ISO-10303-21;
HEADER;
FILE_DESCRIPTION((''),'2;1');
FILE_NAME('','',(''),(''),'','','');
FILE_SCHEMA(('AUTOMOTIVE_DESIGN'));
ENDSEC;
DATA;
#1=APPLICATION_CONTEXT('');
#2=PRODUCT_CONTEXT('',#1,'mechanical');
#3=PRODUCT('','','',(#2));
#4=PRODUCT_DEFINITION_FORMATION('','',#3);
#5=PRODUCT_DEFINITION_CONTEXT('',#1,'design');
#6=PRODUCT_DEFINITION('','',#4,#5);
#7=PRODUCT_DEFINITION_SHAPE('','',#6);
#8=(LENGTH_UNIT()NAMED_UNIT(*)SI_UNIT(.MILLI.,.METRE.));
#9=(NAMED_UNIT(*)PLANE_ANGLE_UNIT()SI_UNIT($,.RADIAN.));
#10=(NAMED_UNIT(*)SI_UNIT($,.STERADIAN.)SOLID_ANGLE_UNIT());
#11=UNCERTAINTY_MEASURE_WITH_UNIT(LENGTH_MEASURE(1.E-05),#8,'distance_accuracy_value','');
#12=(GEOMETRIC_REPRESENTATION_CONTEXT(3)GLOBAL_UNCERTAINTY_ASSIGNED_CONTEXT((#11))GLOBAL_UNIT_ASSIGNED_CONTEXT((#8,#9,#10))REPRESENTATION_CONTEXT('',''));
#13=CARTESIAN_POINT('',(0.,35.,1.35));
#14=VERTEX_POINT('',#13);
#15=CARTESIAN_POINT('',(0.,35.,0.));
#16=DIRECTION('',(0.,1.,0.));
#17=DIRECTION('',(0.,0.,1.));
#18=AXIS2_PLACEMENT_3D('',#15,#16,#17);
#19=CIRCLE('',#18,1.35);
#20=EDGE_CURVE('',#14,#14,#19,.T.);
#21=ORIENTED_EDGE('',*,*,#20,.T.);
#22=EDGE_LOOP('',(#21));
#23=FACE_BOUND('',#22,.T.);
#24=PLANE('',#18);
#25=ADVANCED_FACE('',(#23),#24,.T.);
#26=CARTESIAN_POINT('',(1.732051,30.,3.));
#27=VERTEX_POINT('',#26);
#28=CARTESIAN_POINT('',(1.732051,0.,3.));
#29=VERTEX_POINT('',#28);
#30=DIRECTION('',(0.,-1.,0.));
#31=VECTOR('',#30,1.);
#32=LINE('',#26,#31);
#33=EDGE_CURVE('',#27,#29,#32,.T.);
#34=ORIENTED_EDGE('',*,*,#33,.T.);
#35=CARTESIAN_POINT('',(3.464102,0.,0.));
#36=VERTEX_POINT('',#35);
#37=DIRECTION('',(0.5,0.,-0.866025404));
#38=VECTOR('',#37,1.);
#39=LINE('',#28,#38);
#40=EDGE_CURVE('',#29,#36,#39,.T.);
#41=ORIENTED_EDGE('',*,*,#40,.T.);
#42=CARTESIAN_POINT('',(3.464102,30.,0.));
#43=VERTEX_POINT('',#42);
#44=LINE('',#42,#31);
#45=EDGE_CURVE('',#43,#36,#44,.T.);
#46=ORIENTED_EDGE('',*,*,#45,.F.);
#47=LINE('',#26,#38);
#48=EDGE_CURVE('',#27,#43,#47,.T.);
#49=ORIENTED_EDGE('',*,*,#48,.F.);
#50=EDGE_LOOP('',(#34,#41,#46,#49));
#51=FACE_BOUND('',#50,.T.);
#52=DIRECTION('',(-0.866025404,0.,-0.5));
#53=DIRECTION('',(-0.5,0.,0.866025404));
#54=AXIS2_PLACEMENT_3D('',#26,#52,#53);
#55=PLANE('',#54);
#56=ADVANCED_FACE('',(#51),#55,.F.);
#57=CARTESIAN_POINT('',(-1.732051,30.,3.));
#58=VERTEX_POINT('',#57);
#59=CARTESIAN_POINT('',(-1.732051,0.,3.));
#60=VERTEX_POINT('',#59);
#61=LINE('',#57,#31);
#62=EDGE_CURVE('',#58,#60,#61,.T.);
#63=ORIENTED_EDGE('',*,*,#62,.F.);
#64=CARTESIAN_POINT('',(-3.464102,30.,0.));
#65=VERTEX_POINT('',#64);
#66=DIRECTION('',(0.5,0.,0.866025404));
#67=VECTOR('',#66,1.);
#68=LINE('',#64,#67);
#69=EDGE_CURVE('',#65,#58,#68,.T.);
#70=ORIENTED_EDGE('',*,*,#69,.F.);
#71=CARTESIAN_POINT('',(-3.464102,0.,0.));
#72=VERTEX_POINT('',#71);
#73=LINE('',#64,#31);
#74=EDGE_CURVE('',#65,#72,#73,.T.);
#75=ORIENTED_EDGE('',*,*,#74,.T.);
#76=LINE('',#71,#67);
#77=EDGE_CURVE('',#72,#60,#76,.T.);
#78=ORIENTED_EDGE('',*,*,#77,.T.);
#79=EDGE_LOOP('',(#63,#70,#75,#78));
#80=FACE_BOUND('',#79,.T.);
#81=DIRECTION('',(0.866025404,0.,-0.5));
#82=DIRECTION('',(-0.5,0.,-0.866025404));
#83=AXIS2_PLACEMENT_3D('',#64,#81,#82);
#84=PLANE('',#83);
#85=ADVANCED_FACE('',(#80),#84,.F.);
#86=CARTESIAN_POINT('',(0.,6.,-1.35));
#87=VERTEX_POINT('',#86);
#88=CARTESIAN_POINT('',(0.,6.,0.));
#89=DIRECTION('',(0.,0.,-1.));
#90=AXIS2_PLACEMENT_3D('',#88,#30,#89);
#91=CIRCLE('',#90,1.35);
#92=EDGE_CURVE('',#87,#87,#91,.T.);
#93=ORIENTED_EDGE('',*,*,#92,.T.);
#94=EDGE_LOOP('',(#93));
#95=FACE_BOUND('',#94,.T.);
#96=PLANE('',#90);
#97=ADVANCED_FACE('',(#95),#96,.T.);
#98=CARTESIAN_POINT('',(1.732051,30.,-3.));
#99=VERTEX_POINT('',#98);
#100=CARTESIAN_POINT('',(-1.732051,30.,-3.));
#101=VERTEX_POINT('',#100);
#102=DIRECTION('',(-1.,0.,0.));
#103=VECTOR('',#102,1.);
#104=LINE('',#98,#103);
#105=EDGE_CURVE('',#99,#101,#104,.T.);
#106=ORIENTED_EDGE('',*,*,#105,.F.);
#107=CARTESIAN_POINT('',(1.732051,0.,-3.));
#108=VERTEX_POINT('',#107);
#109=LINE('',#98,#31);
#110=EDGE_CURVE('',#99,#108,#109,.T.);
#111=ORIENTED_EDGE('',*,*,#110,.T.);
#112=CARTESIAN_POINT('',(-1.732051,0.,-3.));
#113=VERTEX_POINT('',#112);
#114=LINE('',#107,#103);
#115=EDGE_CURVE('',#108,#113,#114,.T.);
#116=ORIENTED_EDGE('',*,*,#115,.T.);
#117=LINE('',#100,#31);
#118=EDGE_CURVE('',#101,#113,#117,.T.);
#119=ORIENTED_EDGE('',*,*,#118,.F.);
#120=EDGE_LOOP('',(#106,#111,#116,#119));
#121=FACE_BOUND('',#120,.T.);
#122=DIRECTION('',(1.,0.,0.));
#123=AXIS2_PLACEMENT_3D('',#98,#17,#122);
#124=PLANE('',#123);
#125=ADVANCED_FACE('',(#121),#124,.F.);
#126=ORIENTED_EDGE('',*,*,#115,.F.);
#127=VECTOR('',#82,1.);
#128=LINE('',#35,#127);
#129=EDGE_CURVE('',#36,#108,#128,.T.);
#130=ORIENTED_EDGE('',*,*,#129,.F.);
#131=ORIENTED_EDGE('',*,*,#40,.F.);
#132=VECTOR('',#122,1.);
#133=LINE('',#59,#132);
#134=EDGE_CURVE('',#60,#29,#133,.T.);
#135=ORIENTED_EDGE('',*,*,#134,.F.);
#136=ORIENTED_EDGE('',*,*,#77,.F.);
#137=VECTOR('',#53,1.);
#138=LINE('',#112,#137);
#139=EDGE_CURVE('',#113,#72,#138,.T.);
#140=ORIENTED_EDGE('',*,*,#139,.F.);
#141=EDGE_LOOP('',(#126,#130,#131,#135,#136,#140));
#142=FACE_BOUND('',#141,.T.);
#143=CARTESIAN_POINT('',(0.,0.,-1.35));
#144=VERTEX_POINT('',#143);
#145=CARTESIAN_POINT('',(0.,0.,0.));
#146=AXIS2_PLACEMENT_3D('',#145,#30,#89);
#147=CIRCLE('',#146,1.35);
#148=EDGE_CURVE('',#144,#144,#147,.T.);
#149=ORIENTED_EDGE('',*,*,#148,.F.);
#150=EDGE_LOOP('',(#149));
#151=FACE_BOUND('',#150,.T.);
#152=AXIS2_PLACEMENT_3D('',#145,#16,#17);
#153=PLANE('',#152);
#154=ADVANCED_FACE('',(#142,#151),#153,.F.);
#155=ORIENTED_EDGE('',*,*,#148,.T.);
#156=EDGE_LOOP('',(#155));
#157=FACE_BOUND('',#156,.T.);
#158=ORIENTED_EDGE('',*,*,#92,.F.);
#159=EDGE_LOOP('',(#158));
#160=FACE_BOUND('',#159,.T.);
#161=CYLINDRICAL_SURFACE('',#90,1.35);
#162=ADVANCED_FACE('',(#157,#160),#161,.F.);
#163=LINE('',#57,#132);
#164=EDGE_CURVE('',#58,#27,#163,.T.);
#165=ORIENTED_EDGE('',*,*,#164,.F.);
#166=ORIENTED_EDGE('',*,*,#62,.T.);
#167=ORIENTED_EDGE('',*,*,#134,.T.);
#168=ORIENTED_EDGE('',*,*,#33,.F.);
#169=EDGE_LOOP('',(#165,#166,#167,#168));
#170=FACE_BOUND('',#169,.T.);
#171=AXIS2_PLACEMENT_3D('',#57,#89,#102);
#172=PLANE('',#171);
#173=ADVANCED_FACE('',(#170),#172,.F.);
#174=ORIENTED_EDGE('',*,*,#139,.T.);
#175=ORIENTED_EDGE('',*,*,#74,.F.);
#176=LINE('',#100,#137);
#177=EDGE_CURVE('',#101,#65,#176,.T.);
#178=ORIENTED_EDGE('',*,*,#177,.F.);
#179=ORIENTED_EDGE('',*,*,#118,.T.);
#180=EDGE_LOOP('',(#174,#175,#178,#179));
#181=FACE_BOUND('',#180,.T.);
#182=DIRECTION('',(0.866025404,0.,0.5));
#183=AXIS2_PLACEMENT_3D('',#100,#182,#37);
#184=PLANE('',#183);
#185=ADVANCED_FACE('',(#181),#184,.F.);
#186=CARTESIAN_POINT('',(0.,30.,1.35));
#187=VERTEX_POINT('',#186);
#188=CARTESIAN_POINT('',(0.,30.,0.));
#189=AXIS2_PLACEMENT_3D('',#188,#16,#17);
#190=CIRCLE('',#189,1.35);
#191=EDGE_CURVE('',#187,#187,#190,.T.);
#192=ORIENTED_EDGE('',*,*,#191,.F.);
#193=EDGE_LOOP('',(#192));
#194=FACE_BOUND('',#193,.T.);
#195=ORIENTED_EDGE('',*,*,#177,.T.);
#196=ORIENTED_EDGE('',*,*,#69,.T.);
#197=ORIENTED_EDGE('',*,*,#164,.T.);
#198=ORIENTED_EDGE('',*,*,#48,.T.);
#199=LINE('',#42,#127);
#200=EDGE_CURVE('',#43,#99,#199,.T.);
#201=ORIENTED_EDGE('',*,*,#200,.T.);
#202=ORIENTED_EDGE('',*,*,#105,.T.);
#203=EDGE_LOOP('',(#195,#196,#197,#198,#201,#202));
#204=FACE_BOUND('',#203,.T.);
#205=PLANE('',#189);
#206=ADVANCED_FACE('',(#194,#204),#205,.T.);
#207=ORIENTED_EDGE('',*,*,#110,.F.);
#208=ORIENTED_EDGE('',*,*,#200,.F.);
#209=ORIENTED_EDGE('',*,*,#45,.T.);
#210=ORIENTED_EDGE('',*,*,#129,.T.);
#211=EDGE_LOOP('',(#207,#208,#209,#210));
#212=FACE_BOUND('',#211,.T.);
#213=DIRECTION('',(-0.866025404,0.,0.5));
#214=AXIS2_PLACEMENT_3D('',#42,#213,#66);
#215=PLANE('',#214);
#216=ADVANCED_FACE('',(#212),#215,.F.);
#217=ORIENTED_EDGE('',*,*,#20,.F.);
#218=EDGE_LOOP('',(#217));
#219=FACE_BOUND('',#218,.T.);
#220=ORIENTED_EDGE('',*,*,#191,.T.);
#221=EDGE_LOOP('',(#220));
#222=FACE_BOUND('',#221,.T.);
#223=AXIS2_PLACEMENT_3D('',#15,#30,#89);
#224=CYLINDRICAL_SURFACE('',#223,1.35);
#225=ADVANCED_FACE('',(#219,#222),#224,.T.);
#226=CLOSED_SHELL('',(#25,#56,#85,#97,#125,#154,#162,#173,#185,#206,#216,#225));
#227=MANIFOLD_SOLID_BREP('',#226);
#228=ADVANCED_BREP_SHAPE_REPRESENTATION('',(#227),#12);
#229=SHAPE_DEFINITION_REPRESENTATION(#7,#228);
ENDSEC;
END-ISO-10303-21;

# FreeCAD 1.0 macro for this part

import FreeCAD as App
import Part
import Sketcher
Q = App.Units.Quantity

doc = App.newDocument("Part")
body = doc.addObject("PartDesign::Body", "Body")

sketch1 = body.newObject("Sketcher::SketchObject", "Sketch")
sketch1.AttachmentSupport = (doc.getObject("XZ_Plane"), [""])
sketch1.MapMode = "FlatFace"
sketch1.addGeometry(Part.LineSegment(App.Vector(3.464102, 0, 0), App.Vector(1.732051, -3, 0)), False)
sketch1.addGeometry(Part.LineSegment(App.Vector(1.732051, -3, 0), App.Vector(-1.732051, -3, 0)), False)
sketch1.addGeometry(Part.LineSegment(App.Vector(-1.732051, -3, 0), App.Vector(-3.464102, 0, 0)), False)
sketch1.addGeometry(Part.LineSegment(App.Vector(-3.464102, 0, 0), App.Vector(-1.732051, 3, 0)), False)
sketch1.addGeometry(Part.LineSegment(App.Vector(-1.732051, 3, 0), App.Vector(1.732051, 3, 0)), False)
sketch1.addGeometry(Part.LineSegment(App.Vector(1.732051, 3, 0), App.Vector(3.464102, 0, 0)), False)
sketch1.addConstraint(Sketcher.Constraint("Coincident", 0, 2, 1, 1))
sketch1.addConstraint(Sketcher.Constraint("Coincident", 1, 2, 2, 1))
sketch1.addConstraint(Sketcher.Constraint("Coincident", 2, 2, 3, 1))
sketch1.addConstraint(Sketcher.Constraint("Coincident", 3, 2, 4, 1))
sketch1.addConstraint(Sketcher.Constraint("Coincident", 4, 2, 5, 1))
sketch1.addConstraint(Sketcher.Constraint("Coincident", 5, 2, 0, 1))
sketch1.addConstraint(Sketcher.Constraint("Horizontal", 1))
sketch1.addConstraint(Sketcher.Constraint("Horizontal", 4))
sketch1.addConstraint(Sketcher.Constraint("Symmetric", 0, 2, 3, 2, -1, 1))
sketch1.addConstraint(Sketcher.Constraint("Symmetric", 2, 2, 5, 2, -1, 1))
sketch1.addConstraint(Sketcher.Constraint("PointOnObject", 2, 2, -1))
sketch1.addConstraint(Sketcher.Constraint("Parallel", 2, 5))
sketch1.addConstraint(Sketcher.Constraint("Vertical", 1, 2, 3, 2))
sketch1.addConstraint(Sketcher.Constraint("Angle", 0, Q("-120 deg")))
sketch1.addConstraint(Sketcher.Constraint("DistanceY", 0, 2, -1, 1, Q("3 mm")))
sketch1.addConstraint(Sketcher.Constraint("DistanceX", 1, 2, 1, 1, Q("3.464102 mm")))
pad1 = body.newObject("PartDesign::Pad", "Pad")
pad1.Profile = sketch1
pad1.Length = 30
pad1.Reversed = True

sketch2 = body.newObject("Sketcher::SketchObject", "Sketch001")
sketch2.AttachmentSupport = (doc.getObject("XZ_Plane"), [""])
sketch2.MapMode = "FlatFace"
sketch2.AttachmentOffset = App.Placement(App.Vector(0, 0, -30), App.Rotation())
sketch2.addGeometry(Part.Circle(App.Vector(0, 0, 0), App.Vector(0, 0, 1), 1.35), False)
sketch2.addConstraint(Sketcher.Constraint("Coincident", 0, 3, -1, 1))
sketch2.addConstraint(Sketcher.Constraint("Diameter", 0, Q("2.7 mm")))
pad2 = body.newObject("PartDesign::Pad", "Pad001")
pad2.Profile = sketch2
pad2.Length = 5
pad2.Reversed = True

sketch3 = body.newObject("Sketcher::SketchObject", "Sketch002")
sketch3.AttachmentSupport = (doc.getObject("XZ_Plane"), [""])
sketch3.MapMode = "FlatFace"
sketch3.addGeometry(Part.Circle(App.Vector(0, 0, 0), App.Vector(0, 0, 1), 1.35), False)
sketch3.addConstraint(Sketcher.Constraint("Coincident", 0, 3, -1, 1))
sketch3.addConstraint(Sketcher.Constraint("Diameter", 0, Q("2.7 mm")))
pocket1 = body.newObject("PartDesign::Pocket", "Pocket")
pocket1.Profile = sketch3
pocket1.Length = 6

doc.recompute()
